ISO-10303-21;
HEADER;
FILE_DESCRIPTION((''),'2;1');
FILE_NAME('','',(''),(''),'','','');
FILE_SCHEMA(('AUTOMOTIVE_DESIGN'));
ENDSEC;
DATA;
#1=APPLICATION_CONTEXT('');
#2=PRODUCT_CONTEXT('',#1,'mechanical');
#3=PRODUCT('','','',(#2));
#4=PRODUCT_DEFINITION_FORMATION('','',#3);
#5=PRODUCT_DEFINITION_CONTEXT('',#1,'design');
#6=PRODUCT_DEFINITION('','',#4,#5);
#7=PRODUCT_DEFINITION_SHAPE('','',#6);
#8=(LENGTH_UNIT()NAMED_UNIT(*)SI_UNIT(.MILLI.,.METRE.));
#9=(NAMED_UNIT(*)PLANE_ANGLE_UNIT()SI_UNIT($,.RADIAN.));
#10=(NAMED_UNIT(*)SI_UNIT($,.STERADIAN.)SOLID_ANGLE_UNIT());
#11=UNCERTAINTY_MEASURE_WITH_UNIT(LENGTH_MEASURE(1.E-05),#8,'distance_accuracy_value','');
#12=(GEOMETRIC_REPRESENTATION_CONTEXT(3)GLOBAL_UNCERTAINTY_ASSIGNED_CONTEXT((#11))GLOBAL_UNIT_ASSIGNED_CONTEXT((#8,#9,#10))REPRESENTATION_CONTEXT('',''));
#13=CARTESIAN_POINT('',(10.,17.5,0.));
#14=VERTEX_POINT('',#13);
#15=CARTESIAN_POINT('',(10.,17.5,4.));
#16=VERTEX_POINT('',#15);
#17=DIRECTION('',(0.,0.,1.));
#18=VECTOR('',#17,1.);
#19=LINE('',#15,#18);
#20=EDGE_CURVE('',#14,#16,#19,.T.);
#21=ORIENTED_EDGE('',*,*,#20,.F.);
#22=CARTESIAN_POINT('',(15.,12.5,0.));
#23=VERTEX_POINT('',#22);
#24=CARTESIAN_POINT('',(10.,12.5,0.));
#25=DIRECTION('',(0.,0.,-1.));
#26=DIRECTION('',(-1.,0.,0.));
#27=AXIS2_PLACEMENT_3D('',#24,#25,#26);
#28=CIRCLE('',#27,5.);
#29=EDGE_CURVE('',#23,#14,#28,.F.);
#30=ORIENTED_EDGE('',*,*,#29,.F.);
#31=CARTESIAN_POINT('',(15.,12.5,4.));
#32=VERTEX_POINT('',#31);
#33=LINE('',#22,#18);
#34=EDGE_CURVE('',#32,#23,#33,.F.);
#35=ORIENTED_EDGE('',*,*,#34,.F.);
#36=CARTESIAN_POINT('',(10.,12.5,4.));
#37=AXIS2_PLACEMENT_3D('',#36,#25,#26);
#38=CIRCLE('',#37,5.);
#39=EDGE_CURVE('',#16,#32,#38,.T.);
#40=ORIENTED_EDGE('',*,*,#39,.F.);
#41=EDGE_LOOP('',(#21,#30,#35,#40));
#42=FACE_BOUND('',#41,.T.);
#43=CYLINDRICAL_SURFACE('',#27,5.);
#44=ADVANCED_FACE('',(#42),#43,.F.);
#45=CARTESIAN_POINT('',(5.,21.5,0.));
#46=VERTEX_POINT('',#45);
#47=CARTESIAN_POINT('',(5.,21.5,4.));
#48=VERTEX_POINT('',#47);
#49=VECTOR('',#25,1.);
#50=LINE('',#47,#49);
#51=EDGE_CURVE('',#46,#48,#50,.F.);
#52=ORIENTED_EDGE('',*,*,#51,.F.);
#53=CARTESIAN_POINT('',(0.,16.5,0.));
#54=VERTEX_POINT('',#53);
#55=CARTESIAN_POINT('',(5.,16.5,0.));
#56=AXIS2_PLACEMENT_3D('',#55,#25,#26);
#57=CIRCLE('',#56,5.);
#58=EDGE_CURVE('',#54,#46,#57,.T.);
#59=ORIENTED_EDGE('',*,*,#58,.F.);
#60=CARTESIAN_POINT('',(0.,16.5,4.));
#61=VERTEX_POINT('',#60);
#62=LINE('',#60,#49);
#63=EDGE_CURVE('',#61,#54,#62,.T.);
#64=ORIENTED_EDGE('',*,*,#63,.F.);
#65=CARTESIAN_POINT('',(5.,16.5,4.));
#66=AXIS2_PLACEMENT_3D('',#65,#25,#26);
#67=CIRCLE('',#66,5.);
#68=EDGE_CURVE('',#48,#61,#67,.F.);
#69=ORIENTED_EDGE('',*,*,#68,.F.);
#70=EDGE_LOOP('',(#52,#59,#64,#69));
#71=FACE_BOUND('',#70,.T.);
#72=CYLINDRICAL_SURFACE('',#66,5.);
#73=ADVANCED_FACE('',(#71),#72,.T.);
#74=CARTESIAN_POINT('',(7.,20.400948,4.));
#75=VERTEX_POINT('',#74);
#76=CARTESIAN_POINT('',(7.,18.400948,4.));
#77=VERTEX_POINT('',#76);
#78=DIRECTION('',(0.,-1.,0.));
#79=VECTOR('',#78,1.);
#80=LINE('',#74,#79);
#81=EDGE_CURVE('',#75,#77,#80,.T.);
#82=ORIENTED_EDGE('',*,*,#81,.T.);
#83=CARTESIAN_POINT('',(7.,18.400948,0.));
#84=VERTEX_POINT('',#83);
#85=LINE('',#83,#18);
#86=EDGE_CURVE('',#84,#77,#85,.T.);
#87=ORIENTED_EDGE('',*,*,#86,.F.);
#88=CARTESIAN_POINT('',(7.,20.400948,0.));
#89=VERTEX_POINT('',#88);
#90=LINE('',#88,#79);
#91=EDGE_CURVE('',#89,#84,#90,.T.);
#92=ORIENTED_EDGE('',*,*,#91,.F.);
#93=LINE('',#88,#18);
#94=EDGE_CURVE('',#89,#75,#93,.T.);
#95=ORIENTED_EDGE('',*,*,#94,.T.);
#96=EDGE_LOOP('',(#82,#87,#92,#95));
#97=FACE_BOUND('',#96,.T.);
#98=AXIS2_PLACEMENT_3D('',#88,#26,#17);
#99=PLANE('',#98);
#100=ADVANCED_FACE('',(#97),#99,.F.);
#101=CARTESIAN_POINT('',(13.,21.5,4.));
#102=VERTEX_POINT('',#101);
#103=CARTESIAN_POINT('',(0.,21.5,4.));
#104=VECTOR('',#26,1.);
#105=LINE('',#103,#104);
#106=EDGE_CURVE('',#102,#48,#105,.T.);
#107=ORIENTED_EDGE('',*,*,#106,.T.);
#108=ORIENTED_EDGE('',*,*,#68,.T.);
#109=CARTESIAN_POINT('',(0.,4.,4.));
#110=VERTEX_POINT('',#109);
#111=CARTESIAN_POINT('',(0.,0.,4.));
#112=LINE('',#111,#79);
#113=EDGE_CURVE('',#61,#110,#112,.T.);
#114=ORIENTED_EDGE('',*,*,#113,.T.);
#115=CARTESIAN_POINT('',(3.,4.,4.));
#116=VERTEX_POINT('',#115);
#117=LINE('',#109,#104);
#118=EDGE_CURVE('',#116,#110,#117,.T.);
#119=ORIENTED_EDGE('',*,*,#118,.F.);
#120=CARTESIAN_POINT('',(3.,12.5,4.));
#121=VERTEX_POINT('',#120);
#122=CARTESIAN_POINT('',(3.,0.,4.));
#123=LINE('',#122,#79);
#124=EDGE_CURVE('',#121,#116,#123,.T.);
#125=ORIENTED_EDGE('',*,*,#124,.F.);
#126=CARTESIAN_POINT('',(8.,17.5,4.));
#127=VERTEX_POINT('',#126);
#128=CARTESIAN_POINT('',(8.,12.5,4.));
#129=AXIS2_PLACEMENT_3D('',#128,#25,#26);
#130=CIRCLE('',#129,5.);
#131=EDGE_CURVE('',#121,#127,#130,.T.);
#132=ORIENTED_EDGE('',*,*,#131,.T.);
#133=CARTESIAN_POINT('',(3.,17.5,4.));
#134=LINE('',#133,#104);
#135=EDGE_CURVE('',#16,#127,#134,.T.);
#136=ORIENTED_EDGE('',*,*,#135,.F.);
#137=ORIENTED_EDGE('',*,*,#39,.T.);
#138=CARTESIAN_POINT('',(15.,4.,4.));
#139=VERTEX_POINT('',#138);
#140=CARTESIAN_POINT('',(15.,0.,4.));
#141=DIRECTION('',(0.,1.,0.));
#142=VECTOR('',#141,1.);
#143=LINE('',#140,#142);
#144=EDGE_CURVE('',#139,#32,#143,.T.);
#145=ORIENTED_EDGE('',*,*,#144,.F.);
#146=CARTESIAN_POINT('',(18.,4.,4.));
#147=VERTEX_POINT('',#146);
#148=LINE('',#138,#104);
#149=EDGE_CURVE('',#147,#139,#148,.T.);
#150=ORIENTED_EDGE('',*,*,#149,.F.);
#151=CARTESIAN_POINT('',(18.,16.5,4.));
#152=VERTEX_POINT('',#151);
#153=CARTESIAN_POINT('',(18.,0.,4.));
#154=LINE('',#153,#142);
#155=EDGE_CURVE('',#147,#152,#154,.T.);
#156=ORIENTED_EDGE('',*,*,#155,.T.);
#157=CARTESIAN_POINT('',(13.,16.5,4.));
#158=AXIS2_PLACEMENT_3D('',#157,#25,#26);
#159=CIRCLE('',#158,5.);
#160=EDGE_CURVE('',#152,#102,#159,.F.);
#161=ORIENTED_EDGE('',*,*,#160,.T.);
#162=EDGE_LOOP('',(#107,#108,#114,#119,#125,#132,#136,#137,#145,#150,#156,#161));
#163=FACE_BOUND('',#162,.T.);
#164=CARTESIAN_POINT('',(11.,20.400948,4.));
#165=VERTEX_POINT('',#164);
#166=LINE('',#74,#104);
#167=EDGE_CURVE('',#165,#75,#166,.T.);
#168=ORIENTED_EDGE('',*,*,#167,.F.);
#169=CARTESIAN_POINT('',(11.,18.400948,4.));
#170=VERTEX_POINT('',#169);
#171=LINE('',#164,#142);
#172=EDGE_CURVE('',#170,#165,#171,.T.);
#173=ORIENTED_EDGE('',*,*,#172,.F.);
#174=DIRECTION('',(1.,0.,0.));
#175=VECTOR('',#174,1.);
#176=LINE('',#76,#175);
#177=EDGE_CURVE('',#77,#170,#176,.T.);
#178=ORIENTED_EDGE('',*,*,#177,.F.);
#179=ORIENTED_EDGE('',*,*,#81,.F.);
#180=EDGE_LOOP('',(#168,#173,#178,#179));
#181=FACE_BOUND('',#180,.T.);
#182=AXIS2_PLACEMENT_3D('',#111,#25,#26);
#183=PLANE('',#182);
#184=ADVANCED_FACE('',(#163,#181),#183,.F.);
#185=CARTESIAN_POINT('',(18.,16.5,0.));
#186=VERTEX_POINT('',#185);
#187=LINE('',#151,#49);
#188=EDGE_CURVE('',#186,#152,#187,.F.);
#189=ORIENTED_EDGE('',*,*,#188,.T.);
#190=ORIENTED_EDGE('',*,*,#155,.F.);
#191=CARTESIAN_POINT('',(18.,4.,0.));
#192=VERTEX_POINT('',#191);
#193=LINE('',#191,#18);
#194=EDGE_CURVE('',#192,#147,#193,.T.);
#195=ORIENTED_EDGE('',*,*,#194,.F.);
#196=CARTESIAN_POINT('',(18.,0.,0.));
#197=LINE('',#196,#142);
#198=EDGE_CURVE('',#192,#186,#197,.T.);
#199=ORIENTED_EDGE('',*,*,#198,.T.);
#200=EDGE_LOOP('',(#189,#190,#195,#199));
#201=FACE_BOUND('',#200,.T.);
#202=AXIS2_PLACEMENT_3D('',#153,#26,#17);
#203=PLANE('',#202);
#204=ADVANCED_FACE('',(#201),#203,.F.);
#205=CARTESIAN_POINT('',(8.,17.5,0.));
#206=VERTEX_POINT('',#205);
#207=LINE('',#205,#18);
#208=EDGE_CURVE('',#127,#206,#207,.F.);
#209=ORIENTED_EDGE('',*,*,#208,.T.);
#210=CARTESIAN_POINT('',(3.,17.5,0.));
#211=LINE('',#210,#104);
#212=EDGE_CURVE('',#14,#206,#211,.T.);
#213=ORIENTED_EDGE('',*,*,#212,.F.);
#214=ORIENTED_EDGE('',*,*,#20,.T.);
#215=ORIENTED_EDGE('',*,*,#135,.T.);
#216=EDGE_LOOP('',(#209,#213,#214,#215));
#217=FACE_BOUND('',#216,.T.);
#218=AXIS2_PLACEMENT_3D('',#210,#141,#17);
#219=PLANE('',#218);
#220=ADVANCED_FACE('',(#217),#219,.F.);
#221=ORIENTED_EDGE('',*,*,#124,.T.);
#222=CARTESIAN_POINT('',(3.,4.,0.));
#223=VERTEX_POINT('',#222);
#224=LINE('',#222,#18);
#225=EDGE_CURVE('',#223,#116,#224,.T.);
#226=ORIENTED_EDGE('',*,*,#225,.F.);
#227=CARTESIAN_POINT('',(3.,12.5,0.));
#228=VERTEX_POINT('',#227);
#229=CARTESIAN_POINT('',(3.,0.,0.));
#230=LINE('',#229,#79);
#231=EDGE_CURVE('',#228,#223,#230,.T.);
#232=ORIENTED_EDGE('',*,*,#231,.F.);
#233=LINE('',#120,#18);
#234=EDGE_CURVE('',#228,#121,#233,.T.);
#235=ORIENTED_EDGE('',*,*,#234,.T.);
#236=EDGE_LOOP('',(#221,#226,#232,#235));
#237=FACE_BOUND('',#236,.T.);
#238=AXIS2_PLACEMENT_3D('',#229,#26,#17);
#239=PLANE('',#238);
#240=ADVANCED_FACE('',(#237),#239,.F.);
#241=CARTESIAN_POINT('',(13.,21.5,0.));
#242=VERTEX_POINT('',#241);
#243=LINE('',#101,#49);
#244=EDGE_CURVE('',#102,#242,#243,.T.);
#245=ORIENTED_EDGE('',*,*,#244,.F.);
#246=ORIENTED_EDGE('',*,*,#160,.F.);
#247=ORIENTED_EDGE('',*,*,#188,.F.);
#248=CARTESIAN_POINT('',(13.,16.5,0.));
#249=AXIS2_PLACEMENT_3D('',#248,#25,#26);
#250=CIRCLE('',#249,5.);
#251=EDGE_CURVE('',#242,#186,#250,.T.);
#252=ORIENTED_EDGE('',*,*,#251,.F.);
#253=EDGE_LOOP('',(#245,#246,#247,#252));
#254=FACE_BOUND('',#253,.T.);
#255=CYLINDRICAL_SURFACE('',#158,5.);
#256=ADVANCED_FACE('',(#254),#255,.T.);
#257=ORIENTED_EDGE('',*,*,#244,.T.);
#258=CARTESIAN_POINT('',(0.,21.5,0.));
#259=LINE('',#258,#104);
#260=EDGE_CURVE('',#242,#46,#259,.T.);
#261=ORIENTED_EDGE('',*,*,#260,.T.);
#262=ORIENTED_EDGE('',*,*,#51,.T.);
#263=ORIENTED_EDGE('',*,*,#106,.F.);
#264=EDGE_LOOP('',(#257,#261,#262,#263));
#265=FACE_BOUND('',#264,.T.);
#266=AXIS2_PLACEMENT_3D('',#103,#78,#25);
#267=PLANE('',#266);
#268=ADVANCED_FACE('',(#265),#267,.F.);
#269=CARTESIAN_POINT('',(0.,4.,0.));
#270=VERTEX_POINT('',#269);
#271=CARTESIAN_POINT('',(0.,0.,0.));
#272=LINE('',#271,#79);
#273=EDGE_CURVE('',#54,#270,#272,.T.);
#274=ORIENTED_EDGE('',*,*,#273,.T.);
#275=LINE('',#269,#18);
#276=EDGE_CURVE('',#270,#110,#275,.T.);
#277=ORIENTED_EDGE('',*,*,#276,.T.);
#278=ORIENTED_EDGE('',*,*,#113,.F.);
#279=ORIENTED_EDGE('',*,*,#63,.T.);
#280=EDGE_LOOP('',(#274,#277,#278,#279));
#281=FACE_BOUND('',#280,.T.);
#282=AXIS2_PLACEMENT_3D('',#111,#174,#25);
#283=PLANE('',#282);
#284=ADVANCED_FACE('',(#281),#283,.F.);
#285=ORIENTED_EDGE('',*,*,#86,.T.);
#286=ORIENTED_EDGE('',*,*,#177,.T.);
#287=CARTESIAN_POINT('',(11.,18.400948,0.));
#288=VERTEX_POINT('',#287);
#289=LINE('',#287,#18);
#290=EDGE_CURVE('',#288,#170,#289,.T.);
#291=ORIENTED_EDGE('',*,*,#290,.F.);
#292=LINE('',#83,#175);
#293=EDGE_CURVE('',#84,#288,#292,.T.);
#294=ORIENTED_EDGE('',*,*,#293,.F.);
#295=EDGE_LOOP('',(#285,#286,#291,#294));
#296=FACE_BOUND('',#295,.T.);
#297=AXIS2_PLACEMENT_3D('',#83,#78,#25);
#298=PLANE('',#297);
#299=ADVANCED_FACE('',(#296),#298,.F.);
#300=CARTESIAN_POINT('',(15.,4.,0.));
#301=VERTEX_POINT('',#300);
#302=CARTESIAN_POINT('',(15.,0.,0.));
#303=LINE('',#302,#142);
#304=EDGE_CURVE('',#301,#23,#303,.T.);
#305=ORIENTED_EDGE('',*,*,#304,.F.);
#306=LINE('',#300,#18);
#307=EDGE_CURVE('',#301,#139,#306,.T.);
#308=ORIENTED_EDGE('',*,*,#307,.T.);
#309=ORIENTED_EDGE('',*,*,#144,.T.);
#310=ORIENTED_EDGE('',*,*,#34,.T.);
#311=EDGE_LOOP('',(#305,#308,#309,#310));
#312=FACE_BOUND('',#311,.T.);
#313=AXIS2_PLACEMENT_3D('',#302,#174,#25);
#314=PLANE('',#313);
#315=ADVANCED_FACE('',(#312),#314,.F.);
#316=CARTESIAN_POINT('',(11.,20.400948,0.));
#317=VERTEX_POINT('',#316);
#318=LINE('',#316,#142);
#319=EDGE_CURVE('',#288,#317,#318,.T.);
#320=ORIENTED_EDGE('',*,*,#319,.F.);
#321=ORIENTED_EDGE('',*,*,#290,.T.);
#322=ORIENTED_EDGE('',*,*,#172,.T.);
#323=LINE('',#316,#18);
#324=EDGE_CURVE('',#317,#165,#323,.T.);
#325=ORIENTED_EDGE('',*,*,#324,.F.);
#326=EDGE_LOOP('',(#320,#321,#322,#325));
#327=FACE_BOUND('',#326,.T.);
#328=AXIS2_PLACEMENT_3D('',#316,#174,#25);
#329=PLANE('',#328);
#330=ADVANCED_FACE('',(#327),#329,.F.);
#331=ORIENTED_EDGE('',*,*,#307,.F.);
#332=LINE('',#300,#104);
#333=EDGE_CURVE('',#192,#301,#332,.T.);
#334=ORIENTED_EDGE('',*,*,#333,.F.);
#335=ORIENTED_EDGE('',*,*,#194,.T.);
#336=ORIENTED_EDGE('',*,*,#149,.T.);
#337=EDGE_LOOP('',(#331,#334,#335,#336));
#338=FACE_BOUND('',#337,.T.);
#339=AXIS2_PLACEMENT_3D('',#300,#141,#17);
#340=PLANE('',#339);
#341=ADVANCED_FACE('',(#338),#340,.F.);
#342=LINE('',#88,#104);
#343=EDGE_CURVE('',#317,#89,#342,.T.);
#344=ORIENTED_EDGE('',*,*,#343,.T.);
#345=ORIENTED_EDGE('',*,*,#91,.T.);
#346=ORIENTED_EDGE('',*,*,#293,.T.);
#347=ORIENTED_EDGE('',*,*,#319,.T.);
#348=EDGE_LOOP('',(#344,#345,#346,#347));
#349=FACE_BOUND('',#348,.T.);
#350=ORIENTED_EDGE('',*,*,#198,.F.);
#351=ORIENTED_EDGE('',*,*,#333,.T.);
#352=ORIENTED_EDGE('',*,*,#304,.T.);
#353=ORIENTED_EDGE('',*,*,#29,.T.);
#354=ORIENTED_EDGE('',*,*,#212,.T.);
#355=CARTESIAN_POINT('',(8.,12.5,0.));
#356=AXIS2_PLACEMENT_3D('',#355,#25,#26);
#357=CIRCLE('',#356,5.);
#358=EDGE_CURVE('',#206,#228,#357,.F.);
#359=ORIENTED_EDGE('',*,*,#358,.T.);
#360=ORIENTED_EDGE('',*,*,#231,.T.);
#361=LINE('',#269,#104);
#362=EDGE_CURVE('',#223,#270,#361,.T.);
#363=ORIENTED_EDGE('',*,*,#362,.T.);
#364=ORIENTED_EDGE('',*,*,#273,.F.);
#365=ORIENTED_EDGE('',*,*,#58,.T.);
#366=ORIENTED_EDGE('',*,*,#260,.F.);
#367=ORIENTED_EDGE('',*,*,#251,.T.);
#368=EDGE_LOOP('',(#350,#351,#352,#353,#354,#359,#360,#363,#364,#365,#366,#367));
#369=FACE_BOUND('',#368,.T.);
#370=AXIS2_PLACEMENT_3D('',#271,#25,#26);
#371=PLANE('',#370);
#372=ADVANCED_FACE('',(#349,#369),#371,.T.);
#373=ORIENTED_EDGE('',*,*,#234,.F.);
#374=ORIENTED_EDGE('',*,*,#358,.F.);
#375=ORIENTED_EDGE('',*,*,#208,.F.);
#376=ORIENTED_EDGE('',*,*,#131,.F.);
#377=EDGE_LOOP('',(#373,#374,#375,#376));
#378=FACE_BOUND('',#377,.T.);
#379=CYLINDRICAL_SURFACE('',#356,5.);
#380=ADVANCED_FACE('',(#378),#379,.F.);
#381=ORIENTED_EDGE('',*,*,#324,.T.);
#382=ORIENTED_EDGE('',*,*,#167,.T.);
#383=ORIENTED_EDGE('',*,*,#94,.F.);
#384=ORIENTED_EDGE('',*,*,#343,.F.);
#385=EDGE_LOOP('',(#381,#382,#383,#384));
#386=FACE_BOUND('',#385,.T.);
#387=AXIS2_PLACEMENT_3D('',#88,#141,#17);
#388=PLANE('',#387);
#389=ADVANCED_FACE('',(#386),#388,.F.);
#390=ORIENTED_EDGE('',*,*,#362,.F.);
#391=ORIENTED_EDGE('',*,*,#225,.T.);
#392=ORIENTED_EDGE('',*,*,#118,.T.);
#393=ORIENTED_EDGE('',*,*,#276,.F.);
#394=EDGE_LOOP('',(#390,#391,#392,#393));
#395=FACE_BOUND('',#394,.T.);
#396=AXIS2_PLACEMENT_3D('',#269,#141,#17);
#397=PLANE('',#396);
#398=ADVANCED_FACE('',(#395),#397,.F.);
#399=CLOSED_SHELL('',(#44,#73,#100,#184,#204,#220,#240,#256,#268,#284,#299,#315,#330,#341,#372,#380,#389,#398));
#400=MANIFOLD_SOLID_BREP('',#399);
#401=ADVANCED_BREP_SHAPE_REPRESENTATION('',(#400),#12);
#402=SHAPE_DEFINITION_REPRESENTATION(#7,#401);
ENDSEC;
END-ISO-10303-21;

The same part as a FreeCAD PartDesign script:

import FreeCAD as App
import Part
import Sketcher


def edges_at(feature, points):
    """Names of the edges that pass closest to the given points."""
    edges = feature.Shape.Edges
    near = lambda p: min(range(len(edges)), key=lambda i: edges[i].distToShape(Part.Vertex(*p))[0])
    return sorted({f"Edge{near(p) + 1}" for p in points})

doc = App.newDocument("Part")
body = doc.addObject("PartDesign::Body", "Body")

# Sketch on XY plane
sketch1 = doc.addObject("Sketcher::SketchObject", "Sketch")
body.addObject(sketch1)
sketch1.AttachmentSupport = (doc.XY_Plane, [""])
sketch1.MapMode = "FlatFace"
sketch1.addGeometry([
    Part.LineSegment(App.Vector(0, 21.5, 0), App.Vector(0, 0, 0)),
    Part.LineSegment(App.Vector(0, 0, 0), App.Vector(18, 0, 0)),
    Part.LineSegment(App.Vector(18, 0, 0), App.Vector(18, 21.5, 0)),
    Part.LineSegment(App.Vector(18, 21.5, 0), App.Vector(0, 21.5, 0)),
], False)
sketch1.addConstraint([
    Sketcher.Constraint("Coincident", 0, 2, 1, 1),
    Sketcher.Constraint("Coincident", 1, 2, 2, 1),
    Sketcher.Constraint("Coincident", 2, 2, 3, 1),
    Sketcher.Constraint("Coincident", 3, 2, 0, 1),
    Sketcher.Constraint("Vertical", 0),
    Sketcher.Constraint("Horizontal", 1),
    Sketcher.Constraint("Vertical", 2),
    Sketcher.Constraint("Horizontal", 3),
    Sketcher.Constraint("Coincident", 0, 2, -1, 1),
    Sketcher.Constraint("DistanceX", 1, 1, 1, 2, 18.0),
    Sketcher.Constraint("DistanceY", 0, 2, 0, 1, 21.5),
])
pad1 = doc.addObject("PartDesign::Pad", "Pad")
body.addObject(pad1)
pad1.Profile = sketch1
pad1.Length = 4

# Sketch on XY plane
sketch2 = doc.addObject("Sketcher::SketchObject", "Sketch001")
body.addObject(sketch2)
sketch2.AttachmentSupport = (doc.XY_Plane, [""])
sketch2.MapMode = "FlatFace"
sketch2.AttachmentOffset = App.Placement(App.Vector(0, 0, 4), App.Rotation())
sketch2.addGeometry([
    Part.LineSegment(App.Vector(3, 17.5, 0), App.Vector(3, 0, 0)),
    Part.LineSegment(App.Vector(3, 0, 0), App.Vector(15, 0, 0)),
    Part.LineSegment(App.Vector(15, 0, 0), App.Vector(15, 17.5, 0)),
    Part.LineSegment(App.Vector(15, 17.5, 0), App.Vector(3, 17.5, 0)),
], False)
sketch2.addConstraint([
    Sketcher.Constraint("Coincident", 0, 2, 1, 1),
    Sketcher.Constraint("Coincident", 1, 2, 2, 1),
    Sketcher.Constraint("Coincident", 2, 2, 3, 1),
    Sketcher.Constraint("Coincident", 3, 2, 0, 1),
    Sketcher.Constraint("Vertical", 0),
    Sketcher.Constraint("Horizontal", 1),
    Sketcher.Constraint("Vertical", 2),
    Sketcher.Constraint("Horizontal", 3),
    Sketcher.Constraint("PointOnObject", 0, 2, -1),
    Sketcher.Constraint("DistanceX", 1, 1, 1, 2, 12.0),
    Sketcher.Constraint("DistanceY", 0, 2, 0, 1, 17.5),
    Sketcher.Constraint("DistanceX", -1, 1, 0, 2, 3.0),
])
pocket1 = doc.addObject("PartDesign::Pocket", "Pocket")
body.addObject(pocket1)
pocket1.Profile = sketch2
pocket1.Type = "ThroughAll"
doc.recompute()

fillet = doc.addObject("PartDesign::Fillet", "Fillet")
body.addObject(fillet)
fillet.Base = (pocket1, edges_at(pocket1, [(3, 17.5, 2), (15, 17.5, 2)]))
fillet.Radius = 5
doc.recompute()

fillet2 = doc.addObject("PartDesign::Fillet", "Fillet001")
body.addObject(fillet2)
fillet2.Base = (fillet, edges_at(fillet, [(0, 21.5, 2), (18, 21.5, 2)]))
fillet2.Radius = 5

# Sketch on XY plane
sketch3 = doc.addObject("Sketcher::SketchObject", "Sketch002")
body.addObject(sketch3)
sketch3.AttachmentSupport = (doc.XY_Plane, [""])
sketch3.MapMode = "FlatFace"
sketch3.AttachmentOffset = App.Placement(App.Vector(0, 0, 4), App.Rotation())
sketch3.addGeometry([
    Part.LineSegment(App.Vector(7, 20.400948, 0), App.Vector(7, 18.400948, 0)),
    Part.LineSegment(App.Vector(7, 18.400948, 0), App.Vector(11, 18.400948, 0)),
    Part.LineSegment(App.Vector(11, 18.400948, 0), App.Vector(11, 20.400948, 0)),
    Part.LineSegment(App.Vector(11, 20.400948, 0), App.Vector(7, 20.400948, 0)),
], False)
sketch3.addConstraint([
    Sketcher.Constraint("Coincident", 0, 2, 1, 1),
    Sketcher.Constraint("Coincident", 1, 2, 2, 1),
    Sketcher.Constraint("Coincident", 2, 2, 3, 1),
    Sketcher.Constraint("Coincident", 3, 2, 0, 1),
    Sketcher.Constraint("Vertical", 0),
    Sketcher.Constraint("Horizontal", 1),
    Sketcher.Constraint("Vertical", 2),
    Sketcher.Constraint("Horizontal", 3),
    Sketcher.Constraint("DistanceX", 1, 1, 1, 2, 4.0),
    Sketcher.Constraint("DistanceY", 0, 2, 0, 1, 2.0),
    Sketcher.Constraint("DistanceX", -1, 1, 0, 2, 7.0),
    Sketcher.Constraint("DistanceY", -1, 1, 0, 2, 18.400948),
])
pocket2 = doc.addObject("PartDesign::Pocket", "Pocket001")
body.addObject(pocket2)
pocket2.Profile = sketch3
pocket2.Type = "ThroughAll"

# Sketch on XY plane
sketch4 = doc.addObject("Sketcher::SketchObject", "Sketch003")
body.addObject(sketch4)
sketch4.AttachmentSupport = (doc.XY_Plane, [""])
sketch4.MapMode = "FlatFace"
sketch4.AttachmentOffset = App.Placement(App.Vector(0, 0, 4), App.Rotation())
sketch4.addGeometry([
    Part.LineSegment(App.Vector(0, 4, 0), App.Vector(0, 0, 0)),  # 0
    Part.LineSegment(App.Vector(0, 0, 0), App.Vector(3, 0, 0)),  # 1
    Part.LineSegment(App.Vector(3, 0, 0), App.Vector(3, 4, 0)),  # 2
    Part.LineSegment(App.Vector(3, 4, 0), App.Vector(0, 4, 0)),  # 3
    Part.LineSegment(App.Vector(15, 4, 0), App.Vector(15, 0, 0)),  # 4
    Part.LineSegment(App.Vector(15, 0, 0), App.Vector(18, 0, 0)),  # 5
    Part.LineSegment(App.Vector(18, 0, 0), App.Vector(18, 4, 0)),  # 6
    Part.LineSegment(App.Vector(18, 4, 0), App.Vector(15, 4, 0)),  # 7
], False)
sketch4.addConstraint([
    Sketcher.Constraint("Coincident", 0, 2, 1, 1),
    Sketcher.Constraint("Coincident", 1, 2, 2, 1),
    Sketcher.Constraint("Coincident", 2, 2, 3, 1),
    Sketcher.Constraint("Coincident", 3, 2, 0, 1),
    Sketcher.Constraint("Coincident", 4, 2, 5, 1),
    Sketcher.Constraint("Coincident", 5, 2, 6, 1),
    Sketcher.Constraint("Coincident", 6, 2, 7, 1),
    Sketcher.Constraint("Coincident", 7, 2, 4, 1),
    Sketcher.Constraint("Vertical", 0),
    Sketcher.Constraint("Horizontal", 1),
    Sketcher.Constraint("Vertical", 2),
    Sketcher.Constraint("Horizontal", 3),
    Sketcher.Constraint("Vertical", 4),
    Sketcher.Constraint("Horizontal", 5),
    Sketcher.Constraint("Vertical", 6),
    Sketcher.Constraint("Horizontal", 7),
    Sketcher.Constraint("Coincident", 0, 2, -1, 1),
    Sketcher.Constraint("PointOnObject", 4, 2, -1),
    Sketcher.Constraint("Horizontal", 3, 2, 6, 2),
    Sketcher.Constraint("Equal", 3, 5),
    Sketcher.Constraint("DistanceX", 1, 1, 1, 2, 3.0),
    Sketcher.Constraint("DistanceY", 0, 2, 0, 1, 4.0),
    Sketcher.Constraint("DistanceX", -1, 1, 4, 2, 15.0),
])
pocket3 = doc.addObject("PartDesign::Pocket", "Pocket002")
body.addObject(pocket3)
pocket3.Profile = sketch4
pocket3.Type = "ThroughAll"

doc.recompute()
